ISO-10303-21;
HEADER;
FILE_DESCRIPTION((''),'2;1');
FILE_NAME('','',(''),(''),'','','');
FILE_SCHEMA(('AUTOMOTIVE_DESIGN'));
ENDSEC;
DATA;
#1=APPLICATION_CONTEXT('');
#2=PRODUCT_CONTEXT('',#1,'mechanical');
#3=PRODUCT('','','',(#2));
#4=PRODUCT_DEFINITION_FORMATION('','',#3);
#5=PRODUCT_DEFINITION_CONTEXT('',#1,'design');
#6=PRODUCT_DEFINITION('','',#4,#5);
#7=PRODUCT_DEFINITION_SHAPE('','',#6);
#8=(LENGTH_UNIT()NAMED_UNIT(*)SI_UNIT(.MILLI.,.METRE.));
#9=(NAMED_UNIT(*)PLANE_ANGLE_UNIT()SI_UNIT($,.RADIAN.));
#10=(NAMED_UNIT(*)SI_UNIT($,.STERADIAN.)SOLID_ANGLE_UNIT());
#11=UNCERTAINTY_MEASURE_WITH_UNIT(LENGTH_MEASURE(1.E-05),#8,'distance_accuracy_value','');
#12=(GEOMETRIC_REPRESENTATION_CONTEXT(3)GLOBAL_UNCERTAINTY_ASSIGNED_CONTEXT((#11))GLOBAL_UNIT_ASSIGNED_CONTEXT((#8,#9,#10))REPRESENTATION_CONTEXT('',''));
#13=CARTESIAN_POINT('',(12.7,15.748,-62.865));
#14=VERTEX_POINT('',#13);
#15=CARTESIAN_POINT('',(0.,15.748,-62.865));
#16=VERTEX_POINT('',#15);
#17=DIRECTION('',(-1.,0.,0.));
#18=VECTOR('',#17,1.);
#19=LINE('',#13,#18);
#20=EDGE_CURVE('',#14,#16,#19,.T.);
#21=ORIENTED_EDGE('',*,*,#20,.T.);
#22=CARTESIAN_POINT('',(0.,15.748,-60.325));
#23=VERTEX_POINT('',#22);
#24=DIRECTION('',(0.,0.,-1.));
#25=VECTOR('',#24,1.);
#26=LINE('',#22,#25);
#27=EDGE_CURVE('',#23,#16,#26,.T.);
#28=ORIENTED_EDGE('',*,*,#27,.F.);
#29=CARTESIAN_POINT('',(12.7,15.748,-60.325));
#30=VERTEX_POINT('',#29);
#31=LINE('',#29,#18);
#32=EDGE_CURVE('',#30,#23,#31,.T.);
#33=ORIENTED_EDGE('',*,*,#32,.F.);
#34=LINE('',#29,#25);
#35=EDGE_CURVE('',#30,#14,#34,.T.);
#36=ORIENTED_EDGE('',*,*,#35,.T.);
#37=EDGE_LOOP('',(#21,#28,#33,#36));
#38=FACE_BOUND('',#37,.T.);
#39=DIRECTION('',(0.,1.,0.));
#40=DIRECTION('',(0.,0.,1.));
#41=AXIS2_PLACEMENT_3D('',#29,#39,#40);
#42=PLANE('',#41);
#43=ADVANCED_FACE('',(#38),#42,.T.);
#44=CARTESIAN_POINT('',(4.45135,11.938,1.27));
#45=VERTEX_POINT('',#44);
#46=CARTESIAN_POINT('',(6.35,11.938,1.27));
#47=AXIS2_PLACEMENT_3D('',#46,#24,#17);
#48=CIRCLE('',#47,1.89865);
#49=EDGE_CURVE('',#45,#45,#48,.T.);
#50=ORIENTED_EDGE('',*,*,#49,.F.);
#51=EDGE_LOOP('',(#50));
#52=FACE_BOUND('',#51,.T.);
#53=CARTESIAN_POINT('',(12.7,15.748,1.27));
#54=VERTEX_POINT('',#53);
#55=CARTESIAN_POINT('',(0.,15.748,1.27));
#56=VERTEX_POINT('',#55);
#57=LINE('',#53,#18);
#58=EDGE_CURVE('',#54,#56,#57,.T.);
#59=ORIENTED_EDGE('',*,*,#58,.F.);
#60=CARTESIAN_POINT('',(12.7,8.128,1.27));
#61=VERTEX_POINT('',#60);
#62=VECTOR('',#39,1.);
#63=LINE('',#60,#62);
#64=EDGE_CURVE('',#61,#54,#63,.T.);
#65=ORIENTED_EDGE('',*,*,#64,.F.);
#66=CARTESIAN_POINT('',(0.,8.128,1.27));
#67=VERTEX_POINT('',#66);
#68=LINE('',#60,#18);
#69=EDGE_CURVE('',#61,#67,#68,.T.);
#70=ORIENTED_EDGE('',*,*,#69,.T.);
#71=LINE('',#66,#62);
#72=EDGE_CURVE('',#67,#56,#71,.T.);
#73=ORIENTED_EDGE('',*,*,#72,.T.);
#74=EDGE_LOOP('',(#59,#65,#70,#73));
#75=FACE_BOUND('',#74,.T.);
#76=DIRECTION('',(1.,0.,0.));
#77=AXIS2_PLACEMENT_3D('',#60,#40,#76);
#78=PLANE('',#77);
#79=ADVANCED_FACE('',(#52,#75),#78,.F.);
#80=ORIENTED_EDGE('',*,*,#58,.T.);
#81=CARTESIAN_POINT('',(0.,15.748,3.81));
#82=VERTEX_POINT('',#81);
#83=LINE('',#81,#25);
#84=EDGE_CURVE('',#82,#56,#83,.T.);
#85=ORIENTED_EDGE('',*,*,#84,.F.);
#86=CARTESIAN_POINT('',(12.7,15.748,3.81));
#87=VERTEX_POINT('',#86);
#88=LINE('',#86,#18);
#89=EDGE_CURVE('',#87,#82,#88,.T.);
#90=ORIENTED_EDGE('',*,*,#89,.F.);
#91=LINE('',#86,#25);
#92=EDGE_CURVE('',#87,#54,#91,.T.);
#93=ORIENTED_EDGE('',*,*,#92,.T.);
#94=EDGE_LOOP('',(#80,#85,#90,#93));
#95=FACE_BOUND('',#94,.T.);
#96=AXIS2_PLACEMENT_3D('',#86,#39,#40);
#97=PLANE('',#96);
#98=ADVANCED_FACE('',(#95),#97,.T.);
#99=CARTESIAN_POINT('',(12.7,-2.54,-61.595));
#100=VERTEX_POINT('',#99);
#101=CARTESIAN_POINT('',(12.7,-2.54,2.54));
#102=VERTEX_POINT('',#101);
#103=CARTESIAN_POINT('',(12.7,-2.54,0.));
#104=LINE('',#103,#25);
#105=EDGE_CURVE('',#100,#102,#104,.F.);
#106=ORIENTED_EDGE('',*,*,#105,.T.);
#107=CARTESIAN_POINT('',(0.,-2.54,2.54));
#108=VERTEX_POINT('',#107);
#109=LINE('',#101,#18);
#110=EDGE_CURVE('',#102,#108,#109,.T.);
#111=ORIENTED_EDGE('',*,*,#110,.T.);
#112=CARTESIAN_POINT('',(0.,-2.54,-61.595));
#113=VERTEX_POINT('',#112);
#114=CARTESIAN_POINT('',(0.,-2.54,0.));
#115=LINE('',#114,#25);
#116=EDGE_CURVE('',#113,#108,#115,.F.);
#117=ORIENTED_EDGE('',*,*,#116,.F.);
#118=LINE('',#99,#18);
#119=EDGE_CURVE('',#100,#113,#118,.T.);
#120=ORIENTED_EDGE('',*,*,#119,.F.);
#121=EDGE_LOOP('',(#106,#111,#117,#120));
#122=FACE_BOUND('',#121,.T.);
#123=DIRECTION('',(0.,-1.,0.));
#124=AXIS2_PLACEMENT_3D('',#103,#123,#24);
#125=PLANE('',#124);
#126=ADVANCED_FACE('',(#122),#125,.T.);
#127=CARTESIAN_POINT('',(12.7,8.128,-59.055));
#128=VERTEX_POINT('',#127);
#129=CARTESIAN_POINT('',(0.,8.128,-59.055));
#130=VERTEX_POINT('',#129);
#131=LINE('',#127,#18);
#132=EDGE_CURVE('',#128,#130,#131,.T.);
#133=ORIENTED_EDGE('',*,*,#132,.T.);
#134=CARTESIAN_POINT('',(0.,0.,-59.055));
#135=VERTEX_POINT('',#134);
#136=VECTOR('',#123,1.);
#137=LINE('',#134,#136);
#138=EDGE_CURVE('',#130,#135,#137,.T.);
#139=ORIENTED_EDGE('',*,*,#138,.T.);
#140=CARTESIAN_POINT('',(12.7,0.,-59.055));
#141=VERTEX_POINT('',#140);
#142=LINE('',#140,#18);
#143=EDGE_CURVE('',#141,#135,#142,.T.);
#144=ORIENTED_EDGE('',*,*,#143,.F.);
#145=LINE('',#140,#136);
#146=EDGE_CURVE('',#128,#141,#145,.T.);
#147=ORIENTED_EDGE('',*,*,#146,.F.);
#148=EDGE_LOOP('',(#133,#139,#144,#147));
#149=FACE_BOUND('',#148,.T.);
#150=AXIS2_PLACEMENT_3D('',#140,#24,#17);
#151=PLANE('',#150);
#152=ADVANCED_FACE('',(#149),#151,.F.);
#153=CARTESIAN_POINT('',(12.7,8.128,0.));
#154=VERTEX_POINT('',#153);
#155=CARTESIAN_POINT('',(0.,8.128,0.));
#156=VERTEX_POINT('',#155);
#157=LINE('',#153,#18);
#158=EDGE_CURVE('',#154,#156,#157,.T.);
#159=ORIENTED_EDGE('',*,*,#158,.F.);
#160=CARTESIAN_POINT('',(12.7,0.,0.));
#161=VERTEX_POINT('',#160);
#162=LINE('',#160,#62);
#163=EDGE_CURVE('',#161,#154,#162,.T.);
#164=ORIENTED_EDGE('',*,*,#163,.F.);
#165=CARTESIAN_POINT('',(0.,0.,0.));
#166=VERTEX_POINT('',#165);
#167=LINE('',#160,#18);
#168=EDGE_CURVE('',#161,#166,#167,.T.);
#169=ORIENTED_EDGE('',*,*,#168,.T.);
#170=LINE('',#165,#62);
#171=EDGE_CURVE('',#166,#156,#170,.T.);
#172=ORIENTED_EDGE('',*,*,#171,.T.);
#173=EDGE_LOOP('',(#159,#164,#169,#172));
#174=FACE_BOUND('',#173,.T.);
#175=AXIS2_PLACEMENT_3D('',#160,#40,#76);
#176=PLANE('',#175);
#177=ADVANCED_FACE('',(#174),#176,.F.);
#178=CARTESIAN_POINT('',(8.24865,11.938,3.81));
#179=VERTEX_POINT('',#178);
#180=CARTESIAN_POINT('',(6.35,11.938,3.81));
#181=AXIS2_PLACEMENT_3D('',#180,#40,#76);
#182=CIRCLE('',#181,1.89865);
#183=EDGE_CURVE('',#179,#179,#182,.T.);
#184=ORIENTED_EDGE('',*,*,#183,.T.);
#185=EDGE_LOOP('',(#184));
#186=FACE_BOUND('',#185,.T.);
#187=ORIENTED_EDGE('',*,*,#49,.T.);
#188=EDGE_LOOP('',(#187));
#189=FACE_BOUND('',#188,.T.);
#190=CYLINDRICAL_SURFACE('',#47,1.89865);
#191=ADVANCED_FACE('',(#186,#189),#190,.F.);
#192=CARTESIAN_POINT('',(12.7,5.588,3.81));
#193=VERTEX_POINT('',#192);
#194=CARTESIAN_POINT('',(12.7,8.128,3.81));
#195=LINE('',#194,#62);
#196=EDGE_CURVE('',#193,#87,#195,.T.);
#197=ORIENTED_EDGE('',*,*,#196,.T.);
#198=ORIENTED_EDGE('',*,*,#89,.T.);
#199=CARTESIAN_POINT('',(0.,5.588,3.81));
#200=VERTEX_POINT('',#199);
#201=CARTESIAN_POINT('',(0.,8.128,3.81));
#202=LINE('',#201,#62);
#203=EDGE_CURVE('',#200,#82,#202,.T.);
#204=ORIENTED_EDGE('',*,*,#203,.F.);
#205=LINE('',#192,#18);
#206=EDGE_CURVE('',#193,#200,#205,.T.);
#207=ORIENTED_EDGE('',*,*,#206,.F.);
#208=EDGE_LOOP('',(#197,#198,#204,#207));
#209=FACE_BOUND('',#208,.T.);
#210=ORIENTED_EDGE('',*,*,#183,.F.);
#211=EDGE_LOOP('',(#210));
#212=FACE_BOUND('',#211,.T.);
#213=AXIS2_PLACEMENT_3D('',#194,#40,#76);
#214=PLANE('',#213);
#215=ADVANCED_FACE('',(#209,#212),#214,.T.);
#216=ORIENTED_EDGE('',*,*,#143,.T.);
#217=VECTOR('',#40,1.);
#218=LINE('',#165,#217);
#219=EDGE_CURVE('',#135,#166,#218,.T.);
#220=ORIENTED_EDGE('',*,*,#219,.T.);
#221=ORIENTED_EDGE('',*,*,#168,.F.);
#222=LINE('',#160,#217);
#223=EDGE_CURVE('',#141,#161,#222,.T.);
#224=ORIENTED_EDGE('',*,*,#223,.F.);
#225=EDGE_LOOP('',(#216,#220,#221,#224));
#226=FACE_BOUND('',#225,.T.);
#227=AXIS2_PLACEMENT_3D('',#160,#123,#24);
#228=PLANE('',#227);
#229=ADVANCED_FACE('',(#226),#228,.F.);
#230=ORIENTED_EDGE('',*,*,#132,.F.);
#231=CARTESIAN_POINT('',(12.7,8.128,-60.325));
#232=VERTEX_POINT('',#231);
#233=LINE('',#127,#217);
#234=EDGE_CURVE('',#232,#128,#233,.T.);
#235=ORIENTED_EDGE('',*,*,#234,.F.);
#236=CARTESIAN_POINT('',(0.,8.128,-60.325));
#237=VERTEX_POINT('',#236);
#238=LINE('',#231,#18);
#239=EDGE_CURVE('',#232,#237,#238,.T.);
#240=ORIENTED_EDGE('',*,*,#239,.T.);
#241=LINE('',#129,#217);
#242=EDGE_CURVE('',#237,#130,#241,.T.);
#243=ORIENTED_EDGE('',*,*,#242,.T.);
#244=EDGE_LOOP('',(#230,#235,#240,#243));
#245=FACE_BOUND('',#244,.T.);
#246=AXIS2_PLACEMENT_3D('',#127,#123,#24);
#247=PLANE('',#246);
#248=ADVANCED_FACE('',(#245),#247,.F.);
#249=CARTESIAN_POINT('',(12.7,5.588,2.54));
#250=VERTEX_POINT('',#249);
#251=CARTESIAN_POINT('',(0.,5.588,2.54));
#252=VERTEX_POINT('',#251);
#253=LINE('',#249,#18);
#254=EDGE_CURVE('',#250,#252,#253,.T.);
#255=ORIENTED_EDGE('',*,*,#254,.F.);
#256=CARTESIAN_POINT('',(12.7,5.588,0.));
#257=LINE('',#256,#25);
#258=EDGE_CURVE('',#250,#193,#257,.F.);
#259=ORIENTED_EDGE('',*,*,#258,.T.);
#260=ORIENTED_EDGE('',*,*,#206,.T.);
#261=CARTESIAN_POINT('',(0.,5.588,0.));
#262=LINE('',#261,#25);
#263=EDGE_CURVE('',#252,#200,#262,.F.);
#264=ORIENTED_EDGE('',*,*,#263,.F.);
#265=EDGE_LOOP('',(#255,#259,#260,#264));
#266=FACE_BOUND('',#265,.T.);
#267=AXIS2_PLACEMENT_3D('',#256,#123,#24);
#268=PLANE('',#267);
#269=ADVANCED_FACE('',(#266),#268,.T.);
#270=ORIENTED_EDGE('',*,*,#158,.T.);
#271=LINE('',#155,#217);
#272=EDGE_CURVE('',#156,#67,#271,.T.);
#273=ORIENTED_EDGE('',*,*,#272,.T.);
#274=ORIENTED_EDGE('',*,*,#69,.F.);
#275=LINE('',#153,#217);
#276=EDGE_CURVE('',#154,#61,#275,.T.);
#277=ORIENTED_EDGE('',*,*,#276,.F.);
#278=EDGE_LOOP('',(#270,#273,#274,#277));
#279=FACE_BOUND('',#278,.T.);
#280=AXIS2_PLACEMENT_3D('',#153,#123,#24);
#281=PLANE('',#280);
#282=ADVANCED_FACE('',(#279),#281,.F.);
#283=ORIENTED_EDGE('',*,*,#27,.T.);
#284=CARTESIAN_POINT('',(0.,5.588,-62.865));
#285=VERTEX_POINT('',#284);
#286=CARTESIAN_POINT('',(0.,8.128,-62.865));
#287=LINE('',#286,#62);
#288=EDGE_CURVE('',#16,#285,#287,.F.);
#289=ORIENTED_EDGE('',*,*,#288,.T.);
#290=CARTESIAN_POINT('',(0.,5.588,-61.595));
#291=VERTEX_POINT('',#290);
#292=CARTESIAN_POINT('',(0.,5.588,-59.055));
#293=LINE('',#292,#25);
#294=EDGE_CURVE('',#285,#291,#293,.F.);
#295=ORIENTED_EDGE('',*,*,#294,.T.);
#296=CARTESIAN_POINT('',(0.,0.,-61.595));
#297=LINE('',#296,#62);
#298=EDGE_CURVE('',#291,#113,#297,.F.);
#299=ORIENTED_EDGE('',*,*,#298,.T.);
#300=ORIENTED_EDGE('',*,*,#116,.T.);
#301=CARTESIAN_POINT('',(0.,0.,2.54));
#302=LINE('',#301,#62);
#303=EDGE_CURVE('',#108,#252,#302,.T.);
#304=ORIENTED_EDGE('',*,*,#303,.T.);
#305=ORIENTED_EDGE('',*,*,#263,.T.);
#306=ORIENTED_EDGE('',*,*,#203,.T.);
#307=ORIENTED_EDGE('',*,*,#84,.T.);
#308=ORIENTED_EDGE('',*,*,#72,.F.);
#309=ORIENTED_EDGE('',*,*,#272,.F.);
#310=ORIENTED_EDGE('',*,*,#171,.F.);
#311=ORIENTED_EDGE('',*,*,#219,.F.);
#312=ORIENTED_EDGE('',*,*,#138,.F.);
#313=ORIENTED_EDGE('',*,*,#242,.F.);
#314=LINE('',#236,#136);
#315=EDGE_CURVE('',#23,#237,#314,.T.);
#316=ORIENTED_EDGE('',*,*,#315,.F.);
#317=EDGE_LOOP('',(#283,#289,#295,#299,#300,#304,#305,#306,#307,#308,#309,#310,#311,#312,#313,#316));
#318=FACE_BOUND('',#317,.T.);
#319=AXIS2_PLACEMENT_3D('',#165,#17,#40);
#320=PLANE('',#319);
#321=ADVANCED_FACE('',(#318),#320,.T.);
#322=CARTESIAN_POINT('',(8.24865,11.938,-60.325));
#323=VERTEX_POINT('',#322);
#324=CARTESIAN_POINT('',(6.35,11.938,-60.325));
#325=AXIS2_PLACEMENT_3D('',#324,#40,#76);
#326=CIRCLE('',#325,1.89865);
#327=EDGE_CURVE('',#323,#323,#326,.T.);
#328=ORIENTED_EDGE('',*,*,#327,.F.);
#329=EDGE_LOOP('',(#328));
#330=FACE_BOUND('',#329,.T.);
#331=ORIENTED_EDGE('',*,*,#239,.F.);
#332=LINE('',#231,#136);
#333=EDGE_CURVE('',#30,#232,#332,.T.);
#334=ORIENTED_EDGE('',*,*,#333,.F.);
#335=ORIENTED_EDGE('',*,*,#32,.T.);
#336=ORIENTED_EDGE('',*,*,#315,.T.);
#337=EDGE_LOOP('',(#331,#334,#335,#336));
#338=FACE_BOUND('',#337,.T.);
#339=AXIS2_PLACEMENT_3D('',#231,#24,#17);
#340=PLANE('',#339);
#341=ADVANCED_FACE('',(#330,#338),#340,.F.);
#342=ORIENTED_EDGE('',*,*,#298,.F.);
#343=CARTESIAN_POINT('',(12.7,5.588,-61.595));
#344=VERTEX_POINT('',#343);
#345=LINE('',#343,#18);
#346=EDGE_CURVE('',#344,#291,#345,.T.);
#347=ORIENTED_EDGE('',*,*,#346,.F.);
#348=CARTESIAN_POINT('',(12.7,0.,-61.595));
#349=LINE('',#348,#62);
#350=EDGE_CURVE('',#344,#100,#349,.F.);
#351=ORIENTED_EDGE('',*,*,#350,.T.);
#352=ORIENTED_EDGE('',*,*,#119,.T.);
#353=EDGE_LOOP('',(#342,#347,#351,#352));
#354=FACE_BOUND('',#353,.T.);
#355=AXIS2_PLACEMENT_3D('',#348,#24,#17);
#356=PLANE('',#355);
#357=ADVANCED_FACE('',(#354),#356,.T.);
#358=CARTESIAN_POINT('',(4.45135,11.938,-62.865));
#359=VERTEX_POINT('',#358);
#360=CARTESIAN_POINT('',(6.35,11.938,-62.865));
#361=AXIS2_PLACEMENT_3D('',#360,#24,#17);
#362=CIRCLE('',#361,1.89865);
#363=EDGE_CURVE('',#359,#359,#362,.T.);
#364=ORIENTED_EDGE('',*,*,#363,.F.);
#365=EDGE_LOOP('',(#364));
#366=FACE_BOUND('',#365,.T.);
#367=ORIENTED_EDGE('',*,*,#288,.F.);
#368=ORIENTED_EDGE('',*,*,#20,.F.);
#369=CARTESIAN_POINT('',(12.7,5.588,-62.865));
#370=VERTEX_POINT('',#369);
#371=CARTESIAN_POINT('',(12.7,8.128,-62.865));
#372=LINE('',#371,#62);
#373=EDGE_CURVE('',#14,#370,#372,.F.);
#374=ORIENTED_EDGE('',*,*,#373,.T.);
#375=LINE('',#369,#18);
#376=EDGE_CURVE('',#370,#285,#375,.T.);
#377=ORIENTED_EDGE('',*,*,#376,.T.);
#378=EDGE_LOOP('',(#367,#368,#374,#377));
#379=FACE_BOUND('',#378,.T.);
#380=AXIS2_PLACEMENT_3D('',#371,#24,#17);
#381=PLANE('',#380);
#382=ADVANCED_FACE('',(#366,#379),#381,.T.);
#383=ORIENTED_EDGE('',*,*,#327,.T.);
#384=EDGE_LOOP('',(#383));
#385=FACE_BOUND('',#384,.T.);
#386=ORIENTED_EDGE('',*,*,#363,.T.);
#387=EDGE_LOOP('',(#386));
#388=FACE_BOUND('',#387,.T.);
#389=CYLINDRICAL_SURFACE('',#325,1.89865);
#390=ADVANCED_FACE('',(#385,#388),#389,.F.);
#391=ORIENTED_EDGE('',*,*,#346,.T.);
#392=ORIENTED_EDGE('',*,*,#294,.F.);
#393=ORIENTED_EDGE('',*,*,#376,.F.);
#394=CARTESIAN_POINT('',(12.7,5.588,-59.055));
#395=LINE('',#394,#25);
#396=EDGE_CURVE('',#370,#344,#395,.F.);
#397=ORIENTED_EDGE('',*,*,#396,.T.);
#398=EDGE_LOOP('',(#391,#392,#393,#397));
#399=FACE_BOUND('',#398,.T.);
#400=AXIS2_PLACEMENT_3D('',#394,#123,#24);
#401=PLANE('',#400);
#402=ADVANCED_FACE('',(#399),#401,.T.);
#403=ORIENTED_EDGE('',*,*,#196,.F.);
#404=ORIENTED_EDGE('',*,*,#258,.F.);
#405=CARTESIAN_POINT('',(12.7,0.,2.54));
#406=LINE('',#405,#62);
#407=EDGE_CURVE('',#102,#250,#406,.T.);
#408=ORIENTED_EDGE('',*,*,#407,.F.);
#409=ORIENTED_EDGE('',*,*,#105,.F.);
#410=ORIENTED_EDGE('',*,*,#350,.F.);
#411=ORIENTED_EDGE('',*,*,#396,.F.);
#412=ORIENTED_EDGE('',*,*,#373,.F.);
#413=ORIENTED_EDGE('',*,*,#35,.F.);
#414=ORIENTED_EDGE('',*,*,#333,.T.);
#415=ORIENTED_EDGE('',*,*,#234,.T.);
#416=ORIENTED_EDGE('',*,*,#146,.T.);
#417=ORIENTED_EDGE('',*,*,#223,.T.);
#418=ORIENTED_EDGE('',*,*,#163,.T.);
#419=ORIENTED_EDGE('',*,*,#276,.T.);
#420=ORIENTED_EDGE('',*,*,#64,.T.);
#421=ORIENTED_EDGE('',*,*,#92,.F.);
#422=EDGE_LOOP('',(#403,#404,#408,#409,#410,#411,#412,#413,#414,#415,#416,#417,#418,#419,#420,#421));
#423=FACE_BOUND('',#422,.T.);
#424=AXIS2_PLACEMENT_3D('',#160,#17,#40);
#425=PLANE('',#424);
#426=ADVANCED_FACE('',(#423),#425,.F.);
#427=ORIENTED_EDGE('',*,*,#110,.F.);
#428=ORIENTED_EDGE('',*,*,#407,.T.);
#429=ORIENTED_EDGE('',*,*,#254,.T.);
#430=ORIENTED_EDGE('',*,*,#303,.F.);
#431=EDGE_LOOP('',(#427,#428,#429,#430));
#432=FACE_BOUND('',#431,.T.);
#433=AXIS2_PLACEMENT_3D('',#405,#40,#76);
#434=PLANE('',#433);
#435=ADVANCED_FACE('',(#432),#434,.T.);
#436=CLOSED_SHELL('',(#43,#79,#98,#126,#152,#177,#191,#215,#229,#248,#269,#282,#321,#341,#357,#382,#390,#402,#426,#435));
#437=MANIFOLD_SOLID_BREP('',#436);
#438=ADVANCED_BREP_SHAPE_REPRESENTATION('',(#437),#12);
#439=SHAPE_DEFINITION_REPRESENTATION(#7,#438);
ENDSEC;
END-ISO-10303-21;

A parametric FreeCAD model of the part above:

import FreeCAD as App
import Part
import Sketcher
Q = App.Units.Quantity


def add_polygon(sketch, points):
    """Adds a closed chain of lines whose ends are joined by coincident constraints."""
    first, n = sketch.GeometryCount, len(points)
    for a, b in zip(points, points[1:] + points[:1]):
        sketch.addGeometry(Part.LineSegment(App.Vector(*a, 0), App.Vector(*b, 0)), False)
    for i in range(n):
        sketch.addConstraint(Sketcher.Constraint("Coincident", first + i, 2, first + (i + 1) % n, 1))

doc = App.newDocument("Part")
body = doc.addObject("PartDesign::Body", "Body")

sketch1 = body.newObject("Sketcher::SketchObject", "Sketch")
sketch1.AttachmentSupport = (doc.getObject("YZ_Plane"), [""])
sketch1.MapMode = "FlatFace"
add_polygon(sketch1, [(8.128, 1.27), (15.748, 1.27), (15.748, 3.81), (5.588, 3.81), (5.588, 2.54), (-2.54, 2.54), (-2.54, -61.595), (5.588, -61.595), (5.588, -62.865), (15.748, -62.865), (15.748, -60.325), (8.128, -60.325), (8.128, -59.055), (0, -59.055), (0, 0), (8.128, 0)])
sketch1.addConstraint(Sketcher.Constraint("Horizontal", 0))
sketch1.addConstraint(Sketcher.Constraint("Vertical", 1))
sketch1.addConstraint(Sketcher.Constraint("Horizontal", 2))
sketch1.addConstraint(Sketcher.Constraint("Vertical", 3))
sketch1.addConstraint(Sketcher.Constraint("Horizontal", 4))
sketch1.addConstraint(Sketcher.Constraint("Vertical", 5))
sketch1.addConstraint(Sketcher.Constraint("Horizontal", 6))
sketch1.addConstraint(Sketcher.Constraint("Vertical", 7))
sketch1.addConstraint(Sketcher.Constraint("Horizontal", 8))
sketch1.addConstraint(Sketcher.Constraint("Vertical", 9))
sketch1.addConstraint(Sketcher.Constraint("Horizontal", 10))
sketch1.addConstraint(Sketcher.Constraint("Vertical", 11))
sketch1.addConstraint(Sketcher.Constraint("Horizontal", 12))
sketch1.addConstraint(Sketcher.Constraint("Vertical", 13))
sketch1.addConstraint(Sketcher.Constraint("Horizontal", 14))
sketch1.addConstraint(Sketcher.Constraint("Vertical", 15))
sketch1.addConstraint(Sketcher.Constraint("Coincident", 13, 2, -1, 1))
sketch1.addConstraint(Sketcher.Constraint("Vertical", 3, 2, 6, 2))
sketch1.addConstraint(Sketcher.Constraint("Vertical", 1, 2, 8, 2))
sketch1.addConstraint(Sketcher.Constraint("Vertical", 11, 2, 14, 2))
sketch1.addConstraint(Sketcher.Constraint("Equal", 6, 12))
sketch1.addConstraint(Sketcher.Constraint("Equal", 3, 7))
sketch1.addConstraint(Sketcher.Constraint("Equal", 1, 9))
sketch1.addConstraint(Sketcher.Constraint("Equal", 7, 11))
sketch1.addConstraint(Sketcher.Constraint("Equal", 11, 15))
sketch1.addConstraint(Sketcher.Constraint("DistanceX", 0, 1, 0, 2, Q("0.3 in")))
sketch1.addConstraint(Sketcher.Constraint("DistanceX", 2, 2, 2, 1, Q("0.4 in")))
sketch1.addConstraint(Sketcher.Constraint("DistanceY", 1, 1, 1, 2, Q("0.1 in")))
sketch1.addConstraint(Sketcher.Constraint("DistanceX", 4, 2, 4, 1, Q("0.32 in")))
sketch1.addConstraint(Sketcher.Constraint("DistanceY", 3, 2, 3, 1, Q("0.05 in")))
sketch1.addConstraint(Sketcher.Constraint("DistanceY", 5, 2, 5, 1, Q("2.525 in")))
pad1 = body.newObject("PartDesign::Pad", "Pad")
pad1.Profile = sketch1
pad1.Length = Q("0.5 in")

sketch2 = body.newObject("Sketcher::SketchObject", "Sketch001")
sketch2.AttachmentSupport = (doc.getObject("XY_Plane"), [""])
sketch2.MapMode = "FlatFace"
sketch2.AttachmentOffset = App.Placement(App.Vector(0, 0, 0.05 * 25.4), App.Rotation())
sketch2.addGeometry(Part.Circle(App.Vector(6.35, 11.938, 0), App.Vector(0, 0, 1), 1.89865), False)
sketch2.addConstraint(Sketcher.Constraint("Diameter", 0, Q("0.1495 in")))
sketch2.addConstraint(Sketcher.Constraint("DistanceX", -1, 1, 0, 3, Q("0.25 in")))
sketch2.addConstraint(Sketcher.Constraint("DistanceY", -1, 1, 0, 3, Q("0.47 in")))
doc.recompute()
hole = body.newObject("PartDesign::Hole", "Hole")
hole.Profile = sketch2
hole.ThreadType = "None"
hole.Diameter = Q("0.1495 in")
hole.DepthType = "Dimension"
hole.Depth = Q("0.3 in")
hole.DrillPoint = "Angled"
hole.DrillPointAngle = 118
hole.Reversed = True

sketch3 = body.newObject("Sketcher::SketchObject", "Sketch002")
sketch3.AttachmentSupport = (doc.getObject("XY_Plane"), [""])
sketch3.MapMode = "FlatFace"
sketch3.AttachmentOffset = App.Placement(App.Vector(0, 0, -2.375 * 25.4), App.Rotation())
sketch3.addGeometry(Part.Circle(App.Vector(6.35, 11.938, 0), App.Vector(0, 0, 1), 1.89865), False)
sketch3.addConstraint(Sketcher.Constraint("Diameter", 0, Q("0.1495 in")))
sketch3.addConstraint(Sketcher.Constraint("DistanceX", -1, 1, 0, 3, Q("0.25 in")))
sketch3.addConstraint(Sketcher.Constraint("DistanceY", -1, 1, 0, 3, Q("0.47 in")))
doc.recompute()
hole2 = body.newObject("PartDesign::Hole", "Hole001")
hole2.Profile = sketch3
hole2.ThreadType = "None"
hole2.Diameter = Q("0.1495 in")
hole2.DepthType = "Dimension"
hole2.Depth = Q("0.3 in")
hole2.DrillPoint = "Angled"
hole2.DrillPointAngle = 118

doc.recompute()
